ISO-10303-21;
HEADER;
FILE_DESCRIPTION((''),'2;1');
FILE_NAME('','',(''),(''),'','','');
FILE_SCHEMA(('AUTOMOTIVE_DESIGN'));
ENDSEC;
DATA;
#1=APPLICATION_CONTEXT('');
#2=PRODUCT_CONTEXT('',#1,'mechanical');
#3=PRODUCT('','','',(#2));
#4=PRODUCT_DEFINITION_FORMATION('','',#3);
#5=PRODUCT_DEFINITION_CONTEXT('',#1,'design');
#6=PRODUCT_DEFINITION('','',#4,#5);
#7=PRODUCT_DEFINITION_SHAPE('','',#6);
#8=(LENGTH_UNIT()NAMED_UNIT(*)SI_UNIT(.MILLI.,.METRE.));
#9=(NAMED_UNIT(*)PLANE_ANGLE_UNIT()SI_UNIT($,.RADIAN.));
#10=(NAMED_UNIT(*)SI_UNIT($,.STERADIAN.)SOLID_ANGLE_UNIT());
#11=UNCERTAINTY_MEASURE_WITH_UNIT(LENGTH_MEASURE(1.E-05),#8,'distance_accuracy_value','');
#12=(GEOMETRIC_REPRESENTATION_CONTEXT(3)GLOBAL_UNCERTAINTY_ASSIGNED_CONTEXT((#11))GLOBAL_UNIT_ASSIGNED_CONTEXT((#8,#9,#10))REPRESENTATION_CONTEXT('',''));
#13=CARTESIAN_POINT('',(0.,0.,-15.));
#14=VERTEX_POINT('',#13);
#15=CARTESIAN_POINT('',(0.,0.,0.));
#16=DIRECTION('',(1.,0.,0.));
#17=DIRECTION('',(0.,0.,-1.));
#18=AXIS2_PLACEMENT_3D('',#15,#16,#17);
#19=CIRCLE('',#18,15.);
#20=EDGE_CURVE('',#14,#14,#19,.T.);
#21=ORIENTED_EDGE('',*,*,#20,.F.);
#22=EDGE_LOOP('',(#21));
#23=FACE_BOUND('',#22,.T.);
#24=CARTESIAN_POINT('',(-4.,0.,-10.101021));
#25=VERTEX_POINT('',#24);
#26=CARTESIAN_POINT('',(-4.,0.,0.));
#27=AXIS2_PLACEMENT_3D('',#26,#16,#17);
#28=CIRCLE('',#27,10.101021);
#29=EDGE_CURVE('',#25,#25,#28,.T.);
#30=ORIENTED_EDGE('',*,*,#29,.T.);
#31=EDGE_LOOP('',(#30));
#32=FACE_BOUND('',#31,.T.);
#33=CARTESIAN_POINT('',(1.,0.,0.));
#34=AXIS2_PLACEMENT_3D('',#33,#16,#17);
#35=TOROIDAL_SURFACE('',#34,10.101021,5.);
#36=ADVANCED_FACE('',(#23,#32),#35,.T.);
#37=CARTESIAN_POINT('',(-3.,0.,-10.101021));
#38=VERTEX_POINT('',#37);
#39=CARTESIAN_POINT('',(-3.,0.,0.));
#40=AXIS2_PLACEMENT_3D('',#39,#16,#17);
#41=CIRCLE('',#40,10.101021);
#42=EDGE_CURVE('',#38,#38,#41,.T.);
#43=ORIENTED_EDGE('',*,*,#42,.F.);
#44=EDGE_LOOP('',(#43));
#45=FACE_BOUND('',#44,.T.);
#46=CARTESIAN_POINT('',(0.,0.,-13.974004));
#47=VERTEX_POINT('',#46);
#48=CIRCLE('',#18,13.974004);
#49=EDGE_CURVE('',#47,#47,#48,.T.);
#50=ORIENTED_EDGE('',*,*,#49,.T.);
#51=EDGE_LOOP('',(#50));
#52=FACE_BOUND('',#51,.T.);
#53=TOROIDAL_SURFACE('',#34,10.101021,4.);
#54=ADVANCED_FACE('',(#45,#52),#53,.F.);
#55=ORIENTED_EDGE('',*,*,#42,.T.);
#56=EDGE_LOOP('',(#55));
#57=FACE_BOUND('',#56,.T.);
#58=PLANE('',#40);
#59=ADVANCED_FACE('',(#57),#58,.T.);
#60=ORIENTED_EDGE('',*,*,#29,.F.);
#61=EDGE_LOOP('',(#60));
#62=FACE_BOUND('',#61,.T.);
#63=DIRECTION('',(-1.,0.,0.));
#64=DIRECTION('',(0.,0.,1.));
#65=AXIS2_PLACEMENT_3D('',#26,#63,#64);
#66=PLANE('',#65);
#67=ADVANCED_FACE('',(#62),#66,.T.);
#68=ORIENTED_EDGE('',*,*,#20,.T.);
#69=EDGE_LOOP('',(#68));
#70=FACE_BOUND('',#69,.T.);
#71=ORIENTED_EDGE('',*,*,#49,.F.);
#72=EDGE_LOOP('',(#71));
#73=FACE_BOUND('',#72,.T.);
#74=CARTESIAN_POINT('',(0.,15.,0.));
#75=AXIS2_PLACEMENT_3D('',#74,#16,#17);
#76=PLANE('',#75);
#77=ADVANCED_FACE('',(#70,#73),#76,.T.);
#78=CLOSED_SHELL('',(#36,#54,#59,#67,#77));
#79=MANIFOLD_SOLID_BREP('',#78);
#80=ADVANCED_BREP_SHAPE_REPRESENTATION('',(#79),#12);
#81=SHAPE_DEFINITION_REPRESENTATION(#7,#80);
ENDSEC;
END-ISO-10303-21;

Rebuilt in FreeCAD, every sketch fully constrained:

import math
import FreeCAD as App
import Part
import Sketcher

doc = App.newDocument("Part")
body = doc.addObject("PartDesign::Body", "Body")

sketch1 = body.newObject("Sketcher::SketchObject", "Sketch")
sketch1.AttachmentSupport = (doc.getObject("XY_Plane"), [""])
sketch1.MapMode = "FlatFace"
sketch1.addGeometry(Part.LineSegment(App.Vector(-4, 10.1, 0), App.Vector(-4, 0, 0)), False)
sketch1.addGeometry(Part.LineSegment(App.Vector(-4, 0, 0), App.Vector(-3, 0, 0)), False)
sketch1.addGeometry(Part.LineSegment(App.Vector(-3, 0, 0), App.Vector(-3, 10.1, 0)), False)
sketch1.addGeometry(Part.ArcOfCircle(Part.Circle(App.Vector(1, 10.1, 0), App.Vector(0, 0, 1), 4), math.radians(104), math.radians(180)), False)
sketch1.addGeometry(Part.LineSegment(App.Vector(0, 14, 0), App.Vector(0, 15, 0)), False)
sketch1.addGeometry(Part.ArcOfCircle(Part.Circle(App.Vector(1, 10.1, 0), App.Vector(0, 0, 1), 5), math.radians(102), math.radians(180)), False)
sketch1.addConstraint(Sketcher.Constraint("Coincident", 0, 2, 1, 1))
sketch1.addConstraint(Sketcher.Constraint("Coincident", 1, 2, 2, 1))
sketch1.addConstraint(Sketcher.Constraint("Tangent", 2, 2, 3, 2))
sketch1.addConstraint(Sketcher.Constraint("Coincident", 3, 1, 4, 1))
sketch1.addConstraint(Sketcher.Constraint("Coincident", 4, 2, 5, 1))
sketch1.addConstraint(Sketcher.Constraint("Tangent", 5, 2, 0, 1))
sketch1.addConstraint(Sketcher.Constraint("Vertical", 0))
sketch1.addConstraint(Sketcher.Constraint("Horizontal", 1))
sketch1.addConstraint(Sketcher.Constraint("Vertical", 2))
sketch1.addConstraint(Sketcher.Constraint("Vertical", 4))
sketch1.addConstraint(Sketcher.Constraint("Coincident", 5, 3, 3, 3))
sketch1.addConstraint(Sketcher.Constraint("PointOnObject", 0, 2, -1))
sketch1.addConstraint(Sketcher.Constraint("PointOnObject", 3, 1, -2))
sketch1.addConstraint(Sketcher.Constraint("Radius", 3, 4.0))
sketch1.addConstraint(Sketcher.Constraint("Radius", 5, 5.0))
sketch1.addConstraint(Sketcher.Constraint("DistanceX", -1, 1, 3, 3, 1.0))
sketch1.addConstraint(Sketcher.Constraint("DistanceY", -1, 1, 4, 2, 15.0))
revolution = body.newObject("PartDesign::Revolution", "Revolution")
revolution.Profile = sketch1
revolution.ReferenceAxis = (sketch1, ["H_Axis"])
revolution.Angle = 360

doc.recompute()
